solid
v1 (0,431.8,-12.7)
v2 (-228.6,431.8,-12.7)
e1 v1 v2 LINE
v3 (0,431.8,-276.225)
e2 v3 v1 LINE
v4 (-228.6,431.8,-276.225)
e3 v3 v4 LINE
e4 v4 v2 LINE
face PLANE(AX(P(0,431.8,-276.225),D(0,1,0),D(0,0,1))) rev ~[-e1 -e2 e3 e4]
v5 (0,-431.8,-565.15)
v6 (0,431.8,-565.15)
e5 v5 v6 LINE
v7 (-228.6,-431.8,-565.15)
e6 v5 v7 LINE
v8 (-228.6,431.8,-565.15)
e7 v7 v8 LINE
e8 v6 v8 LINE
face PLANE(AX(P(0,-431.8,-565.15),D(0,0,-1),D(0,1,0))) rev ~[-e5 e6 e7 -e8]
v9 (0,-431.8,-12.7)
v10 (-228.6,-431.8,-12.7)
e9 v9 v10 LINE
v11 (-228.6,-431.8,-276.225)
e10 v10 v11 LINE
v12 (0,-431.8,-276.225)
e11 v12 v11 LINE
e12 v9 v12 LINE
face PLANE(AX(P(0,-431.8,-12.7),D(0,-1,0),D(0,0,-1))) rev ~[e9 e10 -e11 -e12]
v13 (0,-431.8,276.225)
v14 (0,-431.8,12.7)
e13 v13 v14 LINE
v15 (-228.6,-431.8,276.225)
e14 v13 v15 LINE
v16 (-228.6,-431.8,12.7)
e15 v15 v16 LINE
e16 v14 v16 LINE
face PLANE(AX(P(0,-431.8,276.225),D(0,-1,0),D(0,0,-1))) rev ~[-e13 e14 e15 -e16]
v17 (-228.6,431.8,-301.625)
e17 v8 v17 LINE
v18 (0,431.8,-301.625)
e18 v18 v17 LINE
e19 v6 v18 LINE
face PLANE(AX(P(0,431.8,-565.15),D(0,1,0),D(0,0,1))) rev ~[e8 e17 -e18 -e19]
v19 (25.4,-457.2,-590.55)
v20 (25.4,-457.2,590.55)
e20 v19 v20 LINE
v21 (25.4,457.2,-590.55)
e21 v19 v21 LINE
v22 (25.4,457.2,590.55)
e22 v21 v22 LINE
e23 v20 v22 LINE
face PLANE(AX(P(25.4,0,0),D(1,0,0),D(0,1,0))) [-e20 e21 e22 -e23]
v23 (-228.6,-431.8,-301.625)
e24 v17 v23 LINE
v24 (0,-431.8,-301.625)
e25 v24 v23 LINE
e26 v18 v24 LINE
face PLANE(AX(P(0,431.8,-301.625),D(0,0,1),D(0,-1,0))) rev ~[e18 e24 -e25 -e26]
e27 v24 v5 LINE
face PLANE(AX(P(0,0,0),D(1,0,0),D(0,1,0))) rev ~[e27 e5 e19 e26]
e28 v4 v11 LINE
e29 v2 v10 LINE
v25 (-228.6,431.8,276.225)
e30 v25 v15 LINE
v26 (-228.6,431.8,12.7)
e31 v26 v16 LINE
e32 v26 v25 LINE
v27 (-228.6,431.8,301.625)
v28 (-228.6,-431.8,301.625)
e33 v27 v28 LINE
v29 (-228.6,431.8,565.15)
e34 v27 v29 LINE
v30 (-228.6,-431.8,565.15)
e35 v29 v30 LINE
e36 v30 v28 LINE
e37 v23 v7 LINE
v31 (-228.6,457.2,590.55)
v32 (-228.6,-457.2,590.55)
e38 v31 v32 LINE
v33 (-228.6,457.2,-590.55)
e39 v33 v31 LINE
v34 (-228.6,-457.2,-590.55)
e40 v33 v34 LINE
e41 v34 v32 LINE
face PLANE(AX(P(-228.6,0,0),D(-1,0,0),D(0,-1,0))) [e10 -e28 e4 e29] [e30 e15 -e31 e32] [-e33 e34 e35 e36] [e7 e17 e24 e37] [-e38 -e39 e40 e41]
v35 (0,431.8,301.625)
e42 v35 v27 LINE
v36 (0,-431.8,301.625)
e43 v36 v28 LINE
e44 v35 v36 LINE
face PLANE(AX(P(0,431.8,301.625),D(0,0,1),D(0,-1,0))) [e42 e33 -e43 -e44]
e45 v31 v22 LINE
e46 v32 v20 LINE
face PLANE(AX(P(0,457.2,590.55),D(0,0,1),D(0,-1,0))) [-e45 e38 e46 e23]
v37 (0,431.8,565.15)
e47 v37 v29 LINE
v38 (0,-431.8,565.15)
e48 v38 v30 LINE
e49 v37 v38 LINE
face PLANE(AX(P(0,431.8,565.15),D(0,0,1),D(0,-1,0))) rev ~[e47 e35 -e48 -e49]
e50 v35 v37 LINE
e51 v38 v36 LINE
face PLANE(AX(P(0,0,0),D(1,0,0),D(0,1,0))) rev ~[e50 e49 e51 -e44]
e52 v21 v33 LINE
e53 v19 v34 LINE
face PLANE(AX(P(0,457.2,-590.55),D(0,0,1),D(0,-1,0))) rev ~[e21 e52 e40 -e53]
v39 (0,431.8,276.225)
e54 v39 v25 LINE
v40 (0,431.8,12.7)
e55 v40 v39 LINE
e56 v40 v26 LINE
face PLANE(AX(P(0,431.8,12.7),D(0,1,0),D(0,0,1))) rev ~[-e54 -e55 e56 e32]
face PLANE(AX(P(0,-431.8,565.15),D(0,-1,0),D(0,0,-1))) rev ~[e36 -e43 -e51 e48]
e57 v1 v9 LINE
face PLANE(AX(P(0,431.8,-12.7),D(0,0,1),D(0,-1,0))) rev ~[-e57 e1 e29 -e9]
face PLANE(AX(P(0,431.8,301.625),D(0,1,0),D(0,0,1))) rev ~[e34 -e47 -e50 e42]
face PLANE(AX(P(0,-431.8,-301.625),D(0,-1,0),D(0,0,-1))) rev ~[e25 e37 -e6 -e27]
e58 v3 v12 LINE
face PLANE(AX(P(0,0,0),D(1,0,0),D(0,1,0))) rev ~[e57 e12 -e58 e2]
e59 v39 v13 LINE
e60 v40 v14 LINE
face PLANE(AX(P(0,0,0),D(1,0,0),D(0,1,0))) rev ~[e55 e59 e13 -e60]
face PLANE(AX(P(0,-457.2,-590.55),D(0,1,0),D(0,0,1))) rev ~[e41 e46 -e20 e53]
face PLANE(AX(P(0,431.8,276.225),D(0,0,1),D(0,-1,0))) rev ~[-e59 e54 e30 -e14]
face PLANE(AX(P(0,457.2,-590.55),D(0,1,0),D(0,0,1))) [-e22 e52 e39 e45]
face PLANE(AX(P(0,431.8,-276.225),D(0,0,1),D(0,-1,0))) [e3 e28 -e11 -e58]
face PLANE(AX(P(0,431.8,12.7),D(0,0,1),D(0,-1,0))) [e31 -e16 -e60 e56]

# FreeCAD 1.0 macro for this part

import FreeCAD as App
import Part
import Sketcher

V = App.Vector
Q = App.Units.Quantity


def add_polygon(sketch, points):
    """Adds a closed chain of lines whose ends are joined by coincident constraints."""
    first, n = sketch.GeometryCount, len(points)
    for a, b in zip(points, points[1:] + points[:1]):
        sketch.addGeometry(Part.LineSegment(App.Vector(*a, 0), App.Vector(*b, 0)), False)
    for i in range(n):
        sketch.addConstraint(Sketcher.Constraint("Coincident", first + i, 2, first + (i + 1) % n, 1))

doc = App.newDocument("Part")
body = doc.addObject("PartDesign::Body", "Body")

sketch1 = body.newObject("Sketcher::SketchObject", "Sketch")
sketch1.AttachmentSupport = (doc.getObject("YZ_Plane"), [""])
sketch1.MapMode = "FlatFace"
add_polygon(sketch1, [(-457, 591), (-457, -591), (457, -591), (457, 591)])
sketch1.addConstraint(Sketcher.Constraint("Vertical", 0))
sketch1.addConstraint(Sketcher.Constraint("Horizontal", 1))
sketch1.addConstraint(Sketcher.Constraint("Vertical", 2))
sketch1.addConstraint(Sketcher.Constraint("Horizontal", 3))
sketch1.addConstraint(Sketcher.Constraint("Symmetric", 0, 2, 2, 2, -1, 1))
sketch1.addConstraint(Sketcher.Constraint("DistanceX", 1, 1, 1, 2, Q("36 in")))
sketch1.addConstraint(Sketcher.Constraint("DistanceY", 0, 2, 0, 1, Q("46.5 in")))
pad1 = body.newObject("PartDesign::Pad", "Pad")
pad1.Profile = sketch1
pad1.Length = Q("1 in")

sketch2 = body.newObject("Sketcher::SketchObject", "Sketch001")
sketch2.AttachmentSupport = (doc.getObject("YZ_Plane"), [""])
sketch2.MapMode = "FlatFace"
add_polygon(sketch2, [(457, 591), (457, -591), (-457, -591), (-457, 591)])
add_polygon(sketch2, [(432, -565), (432, -302), (-432, -302), (-432, -565)])
add_polygon(sketch2, [(432, -276), (432, -13), (-432, -13), (-432, -276)])
add_polygon(sketch2, [(432, 13), (432, 276), (-432, 276), (-432, 13)])
add_polygon(sketch2, [(432, 302), (432, 565), (-432, 565), (-432, 302)])
sketch2.addConstraint(Sketcher.Constraint("Vertical", 0))
sketch2.addConstraint(Sketcher.Constraint("Horizontal", 1))
sketch2.addConstraint(Sketcher.Constraint("Vertical", 2))
sketch2.addConstraint(Sketcher.Constraint("Horizontal", 3))
sketch2.addConstraint(Sketcher.Constraint("Vertical", 4))
sketch2.addConstraint(Sketcher.Constraint("Horizontal", 5))
sketch2.addConstraint(Sketcher.Constraint("Vertical", 6))
sketch2.addConstraint(Sketcher.Constraint("Horizontal", 7))
sketch2.addConstraint(Sketcher.Constraint("Vertical", 8))
sketch2.addConstraint(Sketcher.Constraint("Horizontal", 9))
sketch2.addConstraint(Sketcher.Constraint("Vertical", 10))
sketch2.addConstraint(Sketcher.Constraint("Horizontal", 11))
sketch2.addConstraint(Sketcher.Constraint("Vertical", 12))
sketch2.addConstraint(Sketcher.Constraint("Horizontal", 13))
sketch2.addConstraint(Sketcher.Constraint("Vertical", 14))
sketch2.addConstraint(Sketcher.Constraint("Horizontal", 15))
sketch2.addConstraint(Sketcher.Constraint("Vertical", 16))
sketch2.addConstraint(Sketcher.Constraint("Horizontal", 17))
sketch2.addConstraint(Sketcher.Constraint("Vertical", 18))
sketch2.addConstraint(Sketcher.Constraint("Horizontal", 19))
sketch2.addConstraint(Sketcher.Constraint("Symmetric", 0, 2, 2, 2, -1, 1))
sketch2.addConstraint(Sketcher.Constraint("Symmetric", 10, 2, 12, 2, -1, 1))
sketch2.addConstraint(Sketcher.Constraint("Symmetric", 8, 2, 14, 2, -1, 1))
sketch2.addConstraint(Sketcher.Constraint("Symmetric", 6, 2, 16, 2, -1, 1))
sketch2.addConstraint(Sketcher.Constraint("Symmetric", 4, 2, 18, 2, -1, 1))
sketch2.addConstraint(Sketcher.Constraint("Vertical", 7, 2, 8, 2))
sketch2.addConstraint(Sketcher.Constraint("Vertical", 6, 2, 9, 2))
sketch2.addConstraint(Sketcher.Constraint("Vertical", 11, 2, 12, 2))
sketch2.addConstraint(Sketcher.Constraint("Equal", 6, 8))
sketch2.addConstraint(Sketcher.Constraint("DistanceX", 1, 2, 1, 1, Q("36 in")))
sketch2.addConstraint(Sketcher.Constraint("DistanceX", 5, 2, 5, 1, Q("34 in")))
sketch2.addConstraint(Sketcher.Constraint("DistanceY", 0, 2, 0, 1, Q("46.5 in")))
sketch2.addConstraint(Sketcher.Constraint("DistanceY", 1, 2, 6, 2, Q("1 in")))
sketch2.addConstraint(Sketcher.Constraint("DistanceY", 5, 2, 10, 2, Q("1 in")))
sketch2.addConstraint(Sketcher.Constraint("DistanceY", 9, 2, 14, 2, Q("1 in")))
pad2 = body.newObject("PartDesign::Pad", "Pad001")
pad2.Profile = sketch2
pad2.Length = Q("9 in")
pad2.Reversed = True

doc.recompute()
